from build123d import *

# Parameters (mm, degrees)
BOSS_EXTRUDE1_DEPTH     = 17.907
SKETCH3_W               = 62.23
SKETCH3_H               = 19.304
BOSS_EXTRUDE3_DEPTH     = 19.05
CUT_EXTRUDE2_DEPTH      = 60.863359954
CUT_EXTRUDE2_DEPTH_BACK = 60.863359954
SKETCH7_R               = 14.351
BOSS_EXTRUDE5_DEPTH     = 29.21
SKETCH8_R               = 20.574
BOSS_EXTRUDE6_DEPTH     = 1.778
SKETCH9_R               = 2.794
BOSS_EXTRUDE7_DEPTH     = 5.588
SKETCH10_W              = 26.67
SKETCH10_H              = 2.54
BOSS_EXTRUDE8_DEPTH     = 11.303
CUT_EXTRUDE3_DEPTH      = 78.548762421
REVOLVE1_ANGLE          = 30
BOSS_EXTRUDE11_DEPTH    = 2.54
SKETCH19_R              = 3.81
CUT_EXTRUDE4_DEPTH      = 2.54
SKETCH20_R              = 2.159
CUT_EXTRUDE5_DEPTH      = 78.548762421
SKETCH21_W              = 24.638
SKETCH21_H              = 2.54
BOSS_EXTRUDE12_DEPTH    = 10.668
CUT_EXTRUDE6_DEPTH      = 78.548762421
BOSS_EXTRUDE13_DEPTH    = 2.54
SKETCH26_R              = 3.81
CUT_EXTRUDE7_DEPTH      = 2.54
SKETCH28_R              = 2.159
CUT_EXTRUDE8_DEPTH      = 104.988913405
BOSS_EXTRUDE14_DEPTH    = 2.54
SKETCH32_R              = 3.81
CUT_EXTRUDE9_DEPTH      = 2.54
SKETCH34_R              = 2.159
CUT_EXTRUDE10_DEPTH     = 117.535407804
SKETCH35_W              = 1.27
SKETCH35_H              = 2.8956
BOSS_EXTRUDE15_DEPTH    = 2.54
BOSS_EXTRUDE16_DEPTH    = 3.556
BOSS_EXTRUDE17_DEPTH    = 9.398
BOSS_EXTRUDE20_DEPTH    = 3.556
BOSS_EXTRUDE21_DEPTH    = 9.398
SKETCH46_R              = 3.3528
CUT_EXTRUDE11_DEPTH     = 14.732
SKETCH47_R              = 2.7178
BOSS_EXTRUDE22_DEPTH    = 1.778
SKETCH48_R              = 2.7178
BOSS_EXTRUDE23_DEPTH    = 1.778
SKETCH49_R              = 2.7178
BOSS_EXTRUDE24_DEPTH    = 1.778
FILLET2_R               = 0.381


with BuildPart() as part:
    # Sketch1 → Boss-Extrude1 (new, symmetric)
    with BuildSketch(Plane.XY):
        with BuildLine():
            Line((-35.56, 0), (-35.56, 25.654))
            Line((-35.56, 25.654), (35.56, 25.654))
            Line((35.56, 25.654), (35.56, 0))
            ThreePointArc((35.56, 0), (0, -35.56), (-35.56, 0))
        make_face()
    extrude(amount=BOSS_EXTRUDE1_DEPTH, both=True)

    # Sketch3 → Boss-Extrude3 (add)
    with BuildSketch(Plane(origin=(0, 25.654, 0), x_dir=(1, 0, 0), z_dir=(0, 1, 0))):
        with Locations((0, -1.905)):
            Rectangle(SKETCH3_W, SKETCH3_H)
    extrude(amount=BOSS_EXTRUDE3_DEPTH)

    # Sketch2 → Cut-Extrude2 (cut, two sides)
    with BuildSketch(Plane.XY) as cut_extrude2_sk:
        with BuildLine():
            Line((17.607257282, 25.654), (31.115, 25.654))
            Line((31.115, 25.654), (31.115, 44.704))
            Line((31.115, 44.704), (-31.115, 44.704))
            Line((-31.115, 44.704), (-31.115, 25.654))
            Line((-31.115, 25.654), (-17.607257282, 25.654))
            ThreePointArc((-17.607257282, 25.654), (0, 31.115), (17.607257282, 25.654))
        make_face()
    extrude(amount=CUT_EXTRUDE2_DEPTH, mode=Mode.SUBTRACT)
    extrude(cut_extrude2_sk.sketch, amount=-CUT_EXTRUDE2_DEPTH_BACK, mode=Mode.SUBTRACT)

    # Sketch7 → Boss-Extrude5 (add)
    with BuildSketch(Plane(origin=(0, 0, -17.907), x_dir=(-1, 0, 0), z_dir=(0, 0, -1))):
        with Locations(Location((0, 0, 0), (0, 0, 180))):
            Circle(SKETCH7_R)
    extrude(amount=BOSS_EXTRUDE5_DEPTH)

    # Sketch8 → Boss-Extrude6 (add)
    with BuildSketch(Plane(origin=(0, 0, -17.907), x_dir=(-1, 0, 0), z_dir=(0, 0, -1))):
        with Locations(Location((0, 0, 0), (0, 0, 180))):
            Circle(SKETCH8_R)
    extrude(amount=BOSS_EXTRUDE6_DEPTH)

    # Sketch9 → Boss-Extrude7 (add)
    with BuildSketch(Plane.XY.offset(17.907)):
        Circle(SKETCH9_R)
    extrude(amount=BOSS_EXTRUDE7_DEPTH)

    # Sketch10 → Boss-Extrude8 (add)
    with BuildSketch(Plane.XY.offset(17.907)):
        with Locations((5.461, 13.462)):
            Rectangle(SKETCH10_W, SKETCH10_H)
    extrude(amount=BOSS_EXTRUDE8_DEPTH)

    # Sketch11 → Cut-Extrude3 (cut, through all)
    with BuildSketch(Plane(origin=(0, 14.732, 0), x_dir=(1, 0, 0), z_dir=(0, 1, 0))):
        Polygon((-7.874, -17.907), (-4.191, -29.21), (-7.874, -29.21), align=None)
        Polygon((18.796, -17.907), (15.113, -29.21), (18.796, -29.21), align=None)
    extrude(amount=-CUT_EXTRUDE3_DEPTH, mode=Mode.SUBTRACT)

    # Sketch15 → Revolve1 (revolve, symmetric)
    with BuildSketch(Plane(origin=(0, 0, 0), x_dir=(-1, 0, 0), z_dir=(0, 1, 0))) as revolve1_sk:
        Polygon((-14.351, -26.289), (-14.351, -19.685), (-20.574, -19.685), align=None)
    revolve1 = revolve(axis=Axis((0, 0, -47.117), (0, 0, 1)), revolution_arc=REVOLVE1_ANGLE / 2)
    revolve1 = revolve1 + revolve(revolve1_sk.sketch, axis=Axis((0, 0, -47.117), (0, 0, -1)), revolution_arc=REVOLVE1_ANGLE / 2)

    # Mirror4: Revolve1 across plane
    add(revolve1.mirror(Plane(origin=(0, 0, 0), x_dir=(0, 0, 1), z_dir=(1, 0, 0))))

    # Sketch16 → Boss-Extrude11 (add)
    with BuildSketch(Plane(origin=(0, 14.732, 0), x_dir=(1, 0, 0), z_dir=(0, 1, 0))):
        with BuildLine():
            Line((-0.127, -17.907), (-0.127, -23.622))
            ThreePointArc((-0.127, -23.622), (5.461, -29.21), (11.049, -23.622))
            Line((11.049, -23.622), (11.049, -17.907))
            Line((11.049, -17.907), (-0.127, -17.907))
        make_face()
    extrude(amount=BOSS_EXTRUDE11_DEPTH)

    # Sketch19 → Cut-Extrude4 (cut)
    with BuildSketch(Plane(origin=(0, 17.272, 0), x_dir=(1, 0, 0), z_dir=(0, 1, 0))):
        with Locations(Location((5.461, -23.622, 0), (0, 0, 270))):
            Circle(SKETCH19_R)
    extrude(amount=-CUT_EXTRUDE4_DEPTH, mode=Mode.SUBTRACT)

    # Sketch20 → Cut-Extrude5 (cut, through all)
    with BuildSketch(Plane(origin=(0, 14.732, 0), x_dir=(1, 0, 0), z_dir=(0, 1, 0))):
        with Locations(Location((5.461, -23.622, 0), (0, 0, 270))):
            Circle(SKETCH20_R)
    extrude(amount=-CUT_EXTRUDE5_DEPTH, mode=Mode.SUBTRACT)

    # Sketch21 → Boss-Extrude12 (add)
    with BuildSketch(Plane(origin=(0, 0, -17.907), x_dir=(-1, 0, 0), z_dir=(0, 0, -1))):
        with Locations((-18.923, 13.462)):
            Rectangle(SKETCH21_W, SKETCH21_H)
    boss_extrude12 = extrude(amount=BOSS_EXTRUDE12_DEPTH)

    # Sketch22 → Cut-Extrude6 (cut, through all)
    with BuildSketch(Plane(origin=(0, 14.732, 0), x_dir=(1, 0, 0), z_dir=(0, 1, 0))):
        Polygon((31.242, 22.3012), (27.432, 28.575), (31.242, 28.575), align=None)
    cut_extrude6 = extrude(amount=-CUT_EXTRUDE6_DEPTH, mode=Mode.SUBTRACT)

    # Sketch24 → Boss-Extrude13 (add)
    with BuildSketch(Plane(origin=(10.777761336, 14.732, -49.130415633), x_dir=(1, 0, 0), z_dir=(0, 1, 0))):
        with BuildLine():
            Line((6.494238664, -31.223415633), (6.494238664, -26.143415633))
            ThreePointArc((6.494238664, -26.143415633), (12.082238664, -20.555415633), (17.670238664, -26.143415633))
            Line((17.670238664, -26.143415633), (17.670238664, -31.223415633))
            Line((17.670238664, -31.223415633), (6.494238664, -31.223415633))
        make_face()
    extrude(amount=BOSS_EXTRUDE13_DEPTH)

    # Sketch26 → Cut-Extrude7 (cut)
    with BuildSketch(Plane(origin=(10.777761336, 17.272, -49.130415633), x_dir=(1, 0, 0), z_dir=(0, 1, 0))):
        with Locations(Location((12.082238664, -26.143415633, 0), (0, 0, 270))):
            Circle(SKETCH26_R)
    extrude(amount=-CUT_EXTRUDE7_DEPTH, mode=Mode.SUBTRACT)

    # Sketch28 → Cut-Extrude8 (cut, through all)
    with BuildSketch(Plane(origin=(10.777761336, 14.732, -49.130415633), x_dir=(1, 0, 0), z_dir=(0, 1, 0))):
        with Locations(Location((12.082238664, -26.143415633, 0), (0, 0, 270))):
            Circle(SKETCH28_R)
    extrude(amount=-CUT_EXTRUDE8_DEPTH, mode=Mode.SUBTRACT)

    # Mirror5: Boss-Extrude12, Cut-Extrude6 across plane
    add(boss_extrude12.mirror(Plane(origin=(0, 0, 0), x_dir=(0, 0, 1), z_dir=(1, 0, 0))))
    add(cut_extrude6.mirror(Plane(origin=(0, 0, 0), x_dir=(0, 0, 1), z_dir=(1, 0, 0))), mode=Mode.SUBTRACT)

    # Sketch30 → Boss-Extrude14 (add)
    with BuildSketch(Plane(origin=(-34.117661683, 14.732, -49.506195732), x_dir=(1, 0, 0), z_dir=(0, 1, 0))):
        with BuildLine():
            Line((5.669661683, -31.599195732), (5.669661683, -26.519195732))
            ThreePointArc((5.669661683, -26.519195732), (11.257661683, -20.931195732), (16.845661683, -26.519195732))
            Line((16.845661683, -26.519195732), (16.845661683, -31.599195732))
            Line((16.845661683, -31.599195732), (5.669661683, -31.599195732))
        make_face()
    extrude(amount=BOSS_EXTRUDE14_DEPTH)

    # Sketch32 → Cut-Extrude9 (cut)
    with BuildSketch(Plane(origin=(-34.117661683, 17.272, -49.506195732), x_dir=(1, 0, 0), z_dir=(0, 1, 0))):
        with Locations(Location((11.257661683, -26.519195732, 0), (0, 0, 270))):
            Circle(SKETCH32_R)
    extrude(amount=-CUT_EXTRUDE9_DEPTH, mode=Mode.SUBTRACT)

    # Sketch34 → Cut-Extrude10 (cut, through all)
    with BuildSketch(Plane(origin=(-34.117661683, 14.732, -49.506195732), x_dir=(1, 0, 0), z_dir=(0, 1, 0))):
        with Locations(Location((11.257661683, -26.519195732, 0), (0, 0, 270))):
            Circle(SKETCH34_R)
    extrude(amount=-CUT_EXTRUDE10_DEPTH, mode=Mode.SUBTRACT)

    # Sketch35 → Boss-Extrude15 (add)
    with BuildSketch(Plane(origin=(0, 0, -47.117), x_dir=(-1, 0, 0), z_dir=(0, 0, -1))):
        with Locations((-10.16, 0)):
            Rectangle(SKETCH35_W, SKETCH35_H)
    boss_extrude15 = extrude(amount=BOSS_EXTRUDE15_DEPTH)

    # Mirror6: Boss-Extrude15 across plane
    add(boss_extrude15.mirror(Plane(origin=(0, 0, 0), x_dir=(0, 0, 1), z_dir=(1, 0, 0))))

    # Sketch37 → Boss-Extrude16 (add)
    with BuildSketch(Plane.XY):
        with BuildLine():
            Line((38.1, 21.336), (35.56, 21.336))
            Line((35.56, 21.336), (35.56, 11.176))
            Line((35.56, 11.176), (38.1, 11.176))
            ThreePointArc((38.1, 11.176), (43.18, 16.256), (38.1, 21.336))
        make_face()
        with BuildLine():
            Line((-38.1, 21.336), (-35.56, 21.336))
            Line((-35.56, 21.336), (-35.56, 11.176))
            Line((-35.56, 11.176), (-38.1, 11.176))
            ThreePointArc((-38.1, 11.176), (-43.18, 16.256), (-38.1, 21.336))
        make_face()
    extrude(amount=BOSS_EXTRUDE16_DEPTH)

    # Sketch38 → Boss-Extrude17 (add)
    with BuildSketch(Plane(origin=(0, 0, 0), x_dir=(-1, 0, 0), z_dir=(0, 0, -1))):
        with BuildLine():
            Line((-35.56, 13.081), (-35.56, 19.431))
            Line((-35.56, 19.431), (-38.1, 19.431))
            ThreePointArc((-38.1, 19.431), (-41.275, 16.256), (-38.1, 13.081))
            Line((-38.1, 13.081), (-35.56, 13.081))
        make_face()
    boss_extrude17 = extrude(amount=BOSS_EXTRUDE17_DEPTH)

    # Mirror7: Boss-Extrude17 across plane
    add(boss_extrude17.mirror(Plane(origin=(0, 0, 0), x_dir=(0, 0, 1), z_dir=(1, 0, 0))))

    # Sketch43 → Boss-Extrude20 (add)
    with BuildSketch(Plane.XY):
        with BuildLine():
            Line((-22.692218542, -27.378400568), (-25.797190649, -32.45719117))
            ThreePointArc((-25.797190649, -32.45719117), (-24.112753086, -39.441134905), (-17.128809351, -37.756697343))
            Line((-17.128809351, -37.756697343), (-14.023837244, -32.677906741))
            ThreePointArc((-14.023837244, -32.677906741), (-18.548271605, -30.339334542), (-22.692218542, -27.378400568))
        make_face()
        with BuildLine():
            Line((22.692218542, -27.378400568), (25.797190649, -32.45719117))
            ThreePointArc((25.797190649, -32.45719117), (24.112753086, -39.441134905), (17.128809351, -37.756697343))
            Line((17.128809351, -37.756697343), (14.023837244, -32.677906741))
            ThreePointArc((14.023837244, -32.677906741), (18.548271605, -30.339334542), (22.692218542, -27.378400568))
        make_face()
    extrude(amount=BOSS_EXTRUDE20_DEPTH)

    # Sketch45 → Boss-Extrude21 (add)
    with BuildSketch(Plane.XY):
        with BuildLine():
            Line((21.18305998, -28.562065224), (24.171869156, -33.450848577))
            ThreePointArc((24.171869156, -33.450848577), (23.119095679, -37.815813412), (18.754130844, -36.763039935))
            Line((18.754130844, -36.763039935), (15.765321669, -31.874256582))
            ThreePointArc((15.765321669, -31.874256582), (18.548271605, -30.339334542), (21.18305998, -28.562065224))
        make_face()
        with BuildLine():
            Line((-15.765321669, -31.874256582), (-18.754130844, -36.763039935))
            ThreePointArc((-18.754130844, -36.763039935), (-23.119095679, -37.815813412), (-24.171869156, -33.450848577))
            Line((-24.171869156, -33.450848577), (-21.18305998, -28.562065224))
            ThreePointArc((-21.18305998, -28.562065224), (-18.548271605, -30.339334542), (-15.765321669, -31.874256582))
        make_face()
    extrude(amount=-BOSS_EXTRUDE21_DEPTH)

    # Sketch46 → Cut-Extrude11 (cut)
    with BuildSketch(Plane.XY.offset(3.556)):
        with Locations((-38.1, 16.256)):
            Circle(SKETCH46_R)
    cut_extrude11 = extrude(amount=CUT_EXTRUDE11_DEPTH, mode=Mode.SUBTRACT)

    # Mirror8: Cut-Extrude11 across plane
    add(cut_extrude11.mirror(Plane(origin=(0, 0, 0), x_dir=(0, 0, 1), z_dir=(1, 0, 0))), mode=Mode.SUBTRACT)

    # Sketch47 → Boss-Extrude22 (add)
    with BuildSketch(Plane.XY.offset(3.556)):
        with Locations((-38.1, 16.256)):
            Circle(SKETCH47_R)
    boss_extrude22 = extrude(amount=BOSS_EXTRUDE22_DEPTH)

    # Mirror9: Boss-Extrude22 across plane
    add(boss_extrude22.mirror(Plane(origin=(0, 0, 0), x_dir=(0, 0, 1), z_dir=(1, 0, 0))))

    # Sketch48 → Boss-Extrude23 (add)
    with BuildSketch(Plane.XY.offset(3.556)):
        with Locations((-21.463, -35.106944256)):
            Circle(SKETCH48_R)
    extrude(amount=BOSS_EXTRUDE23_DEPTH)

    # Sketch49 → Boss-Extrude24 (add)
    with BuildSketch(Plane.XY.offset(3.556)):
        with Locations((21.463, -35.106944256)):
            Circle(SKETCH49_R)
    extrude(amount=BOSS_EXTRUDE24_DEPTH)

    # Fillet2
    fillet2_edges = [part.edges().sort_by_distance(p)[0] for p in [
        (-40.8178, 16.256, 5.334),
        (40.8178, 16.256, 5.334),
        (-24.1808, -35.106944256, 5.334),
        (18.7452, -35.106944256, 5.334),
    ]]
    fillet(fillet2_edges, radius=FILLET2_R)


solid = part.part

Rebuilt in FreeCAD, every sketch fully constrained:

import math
import FreeCAD as App
import Part
import Sketcher
Q = App.Units.Quantity


def edges_at(feature, points):
    """Names of the edges that pass closest to the given points."""
    edges = feature.Shape.Edges
    near = lambda p: min(range(len(edges)), key=lambda i: edges[i].distToShape(Part.Vertex(*p))[0])
    return sorted({f"Edge{near(p) + 1}" for p in points})


def add_polygon(sketch, points):
    """Adds a closed chain of lines whose ends are joined by coincident constraints."""
    first, n = sketch.GeometryCount, len(points)
    for a, b in zip(points, points[1:] + points[:1]):
        sketch.addGeometry(Part.LineSegment(App.Vector(*a, 0), App.Vector(*b, 0)), False)
    for i in range(n):
        sketch.addConstraint(Sketcher.Constraint("Coincident", first + i, 2, first + (i + 1) % n, 1))

doc = App.newDocument("Part")
body = doc.addObject("PartDesign::Body", "Body")

# Sketch on XY plane
sketch1 = doc.addObject("Sketcher::SketchObject", "Sketch")
body.addObject(sketch1)
sketch1.AttachmentSupport = (doc.XY_Plane, [""])
sketch1.MapMode = "FlatFace"
sketch1.addGeometry([
    Part.LineSegment(App.Vector(-35.56, 25.654, 0), App.Vector(-35.56, 0, 0)),
    Part.ArcOfCircle(Part.Circle(App.Vector(0, 0, 0), App.Vector(0, 0, 1), 35.56), math.radians(180), math.radians(360)),
    Part.LineSegment(App.Vector(35.56, 0, 0), App.Vector(35.56, 25.654, 0)),
    Part.LineSegment(App.Vector(35.56, 25.654, 0), App.Vector(-35.56, 25.654, 0)),
], False)
sketch1.addConstraint([
    Sketcher.Constraint("Tangent", 0, 2, 1, 1),
    Sketcher.Constraint("Tangent", 1, 2, 2, 1),
    Sketcher.Constraint("Coincident", 2, 2, 3, 1),
    Sketcher.Constraint("Coincident", 3, 2, 0, 1),
    Sketcher.Constraint("Vertical", 0),
    Sketcher.Constraint("Vertical", 2),
    Sketcher.Constraint("Horizontal", 3),
    Sketcher.Constraint("Coincident", 1, 3, -1, 1),
    Sketcher.Constraint("Radius", 1, Q("1.4 in")),
    Sketcher.Constraint("DistanceY", 0, 2, 0, 1, Q("1.01 in")),
])
pad1 = doc.addObject("PartDesign::Pad", "Pad")
body.addObject(pad1)
pad1.Profile = sketch1
pad1.Length = Q("1.41 in")
pad1.Midplane = True

# Sketch on XZ plane
sketch2 = doc.addObject("Sketcher::SketchObject", "Sketch001")
body.addObject(sketch2)
sketch2.AttachmentSupport = (doc.XZ_Plane, [""])
sketch2.MapMode = "FlatFace"
sketch2.AttachmentOffset = App.Placement(App.Vector(0, 0, -1.01 * 25.4), App.Rotation())
add_polygon(sketch2, [(-31.115, -7.747), (-31.115, 11.557), (31.115, 11.557), (31.115, -7.747)])  # lines 0-3
sketch2.addConstraint([
    Sketcher.Constraint("Vertical", 0),
    Sketcher.Constraint("Horizontal", 1),
    Sketcher.Constraint("Vertical", 2),
    Sketcher.Constraint("Horizontal", 3),
    Sketcher.Constraint("DistanceX", 1, 1, 1, 2, Q("2.45 in")),
    Sketcher.Constraint("DistanceY", 0, 1, 0, 2, Q("0.76 in")),
    Sketcher.Constraint("DistanceX", 0, 2, -1, 1, Q("1.225 in")),
    Sketcher.Constraint("DistanceY", -1, 1, 0, 2, Q("0.455 in")),
])
pad2 = doc.addObject("PartDesign::Pad", "Pad001")
body.addObject(pad2)
pad2.Profile = sketch2
pad2.Length = Q("0.75 in")
pad2.Reversed = True

# Sketch on XY plane
sketch3 = doc.addObject("Sketcher::SketchObject", "Sketch002")
body.addObject(sketch3)
sketch3.AttachmentSupport = (doc.XY_Plane, [""])
sketch3.MapMode = "FlatFace"
sketch3.addGeometry([
    Part.LineSegment(App.Vector(17.607257, 25.654, 0), App.Vector(31.115, 25.654, 0)),  # 0
    Part.LineSegment(App.Vector(31.115, 25.654, 0), App.Vector(31.115, 44.704, 0)),  # 1
    Part.LineSegment(App.Vector(31.115, 44.704, 0), App.Vector(-31.115, 44.704, 0)),  # 2
    Part.LineSegment(App.Vector(-31.115, 44.704, 0), App.Vector(-31.115, 25.654, 0)),  # 3
    Part.LineSegment(App.Vector(-31.115, 25.654, 0), App.Vector(-17.607257, 25.654, 0)),  # 4
    Part.ArcOfCircle(Part.Circle(App.Vector(0, 0, 0), App.Vector(0, 0, 1), 31.115), math.radians(55.536799), math.radians(124.463201)),  # 5
], False)
sketch3.addConstraint([
    Sketcher.Constraint("Coincident", 0, 2, 1, 1),
    Sketcher.Constraint("Coincident", 1, 2, 2, 1),
    Sketcher.Constraint("Coincident", 2, 2, 3, 1),
    Sketcher.Constraint("Coincident", 3, 2, 4, 1),
    Sketcher.Constraint("Coincident", 4, 2, 5, 2),
    Sketcher.Constraint("Coincident", 5, 1, 0, 1),
    Sketcher.Constraint("Horizontal", 0),
    Sketcher.Constraint("Vertical", 1),
    Sketcher.Constraint("Horizontal", 2),
    Sketcher.Constraint("Vertical", 3),
    Sketcher.Constraint("Horizontal", 4),
    Sketcher.Constraint("Coincident", 5, 3, -1, 1),
    Sketcher.Constraint("Symmetric", 0, 2, 3, 2, -2),
    Sketcher.Constraint("Radius", 5, Q("1.225 in")),
    Sketcher.Constraint("DistanceX", 2, 2, 2, 1, Q("2.45 in")),
    Sketcher.Constraint("DistanceY", 1, 1, 1, 2, Q("0.75 in")),
    Sketcher.Constraint("DistanceY", -1, 1, 0, 2, Q("1.01 in")),
])
pocket1 = doc.addObject("PartDesign::Pocket", "Pocket")
body.addObject(pocket1)
pocket1.Profile = sketch3
pocket1.Type = "ThroughAll"
pocket1.Midplane = True

# Sketch on XY plane
sketch4 = doc.addObject("Sketcher::SketchObject", "Sketch003")
body.addObject(sketch4)
sketch4.AttachmentSupport = (doc.XY_Plane, [""])
sketch4.MapMode = "FlatFace"
sketch4.AttachmentOffset = App.Placement(App.Vector(0, 0, -0.705 * 25.4), App.Rotation())
sketch4.addGeometry(Part.Circle(App.Vector(0, 0, 0), App.Vector(0, 0, 1), 14.351), False)
sketch4.addConstraint([
    Sketcher.Constraint("Coincident", 0, 3, -1, 1),
    Sketcher.Constraint("Diameter", 0, Q("1.13 in")),
])
pad3 = doc.addObject("PartDesign::Pad", "Pad002")
body.addObject(pad3)
pad3.Profile = sketch4
pad3.Length = Q("1.15 in")
pad3.Reversed = True

# Sketch on XY plane
sketch5 = doc.addObject("Sketcher::SketchObject", "Sketch004")
body.addObject(sketch5)
sketch5.AttachmentSupport = (doc.XY_Plane, [""])
sketch5.MapMode = "FlatFace"
sketch5.AttachmentOffset = App.Placement(App.Vector(0, 0, -0.705 * 25.4), App.Rotation())
sketch5.addGeometry(Part.Circle(App.Vector(0, 0, 0), App.Vector(0, 0, 1), 20.574), False)
sketch5.addConstraint([
    Sketcher.Constraint("Coincident", 0, 3, -1, 1),
    Sketcher.Constraint("Diameter", 0, Q("1.62 in")),
])
pad4 = doc.addObject("PartDesign::Pad", "Pad003")
body.addObject(pad4)
pad4.Profile = sketch5
pad4.Length = Q("0.07 in")
pad4.Reversed = True

# Sketch on XY plane
sketch6 = doc.addObject("Sketcher::SketchObject", "Sketch005")
body.addObject(sketch6)
sketch6.AttachmentSupport = (doc.XY_Plane, [""])
sketch6.MapMode = "FlatFace"
sketch6.AttachmentOffset = App.Placement(App.Vector(0, 0, 0.705 * 25.4), App.Rotation())
sketch6.addGeometry(Part.Circle(App.Vector(0, 0, 0), App.Vector(0, 0, 1), 2.794), False)
sketch6.addConstraint([
    Sketcher.Constraint("Coincident", 0, 3, -1, 1),
    Sketcher.Constraint("Diameter", 0, Q("0.22 in")),
])
pad5 = doc.addObject("PartDesign::Pad", "Pad004")
body.addObject(pad5)
pad5.Profile = sketch6
pad5.Length = Q("0.22 in")

# Sketch on XY plane
sketch7 = doc.addObject("Sketcher::SketchObject", "Sketch006")
body.addObject(sketch7)
sketch7.AttachmentSupport = (doc.XY_Plane, [""])
sketch7.MapMode = "FlatFace"
sketch7.AttachmentOffset = App.Placement(App.Vector(0, 0, 0.705 * 25.4), App.Rotation())
add_polygon(sketch7, [(-7.874, 14.732), (-7.874, 12.192), (18.796, 12.192), (18.796, 14.732)])  # lines 0-3
sketch7.addConstraint([
    Sketcher.Constraint("Vertical", 0),
    Sketcher.Constraint("Horizontal", 1),
    Sketcher.Constraint("Vertical", 2),
    Sketcher.Constraint("Horizontal", 3),
    Sketcher.Constraint("DistanceY", 0, 2, 0, 1, Q("0.1 in")),
    Sketcher.Constraint("DistanceX", 1, 1, 1, 2, Q("1.05 in")),
    Sketcher.Constraint("DistanceX", 0, 2, -1, 1, Q("0.31 in")),
    Sketcher.Constraint("DistanceY", -1, 1, 0, 2, Q("0.48 in")),
])
pad6 = doc.addObject("PartDesign::Pad", "Pad005")
body.addObject(pad6)
pad6.Profile = sketch7
pad6.Length = Q("0.445 in")

# Sketch on XZ plane
sketch8 = doc.addObject("Sketcher::SketchObject", "Sketch007")
body.addObject(sketch8)
sketch8.AttachmentSupport = (doc.XZ_Plane, [""])
sketch8.MapMode = "FlatFace"
sketch8.AttachmentOffset = App.Placement(App.Vector(0, 0, -0.58 * 25.4), App.Rotation())
add_polygon(sketch8, [(-4.191, 29.21), (-7.874, 17.907), (-7.874, 29.21)])  # lines 0-2
add_polygon(sketch8, [(18.796, 17.907), (15.113, 29.21), (18.796, 29.21)])  # lines 3-5
sketch8.addConstraint([
    Sketcher.Constraint("Vertical", 1),
    Sketcher.Constraint("Horizontal", 2),
    Sketcher.Constraint("Horizontal", 4),
    Sketcher.Constraint("Vertical", 5),
    Sketcher.Constraint("Horizontal", 2, 2, 3, 2),
    Sketcher.Constraint("Horizontal", 0, 2, 5, 2),
    Sketcher.Constraint("Equal", 2, 4),
    Sketcher.Constraint("DistanceX", 2, 1, 2, 2, Q("0.145 in")),
    Sketcher.Constraint("DistanceY", 1, 1, 1, 2, Q("0.445 in")),
    Sketcher.Constraint("DistanceX", 0, 2, -1, 1, Q("0.31 in")),
    Sketcher.Constraint("DistanceY", -1, 1, 1, 2, Q("1.15 in")),
    Sketcher.Constraint("DistanceX", -1, 1, 4, 2, Q("0.74 in")),
])
pocket2 = doc.addObject("PartDesign::Pocket", "Pocket001")
body.addObject(pocket2)
pocket2.Profile = sketch8
pocket2.Type = "ThroughAll"
pocket2.Reversed = True

# Sketch on XZ plane
sketch9 = doc.addObject("Sketcher::SketchObject", "Sketch008")
body.addObject(sketch9)
sketch9.AttachmentSupport = (doc.XZ_Plane, [""])
sketch9.MapMode = "FlatFace"
add_polygon(sketch9, [(14.351, -26.289), (14.351, -19.685), (20.574, -19.685)])  # lines 0-2
sketch9.addConstraint([
    Sketcher.Constraint("Vertical", 0),
    Sketcher.Constraint("Horizontal", 1),
    Sketcher.Constraint("DistanceY", 0, 1, 0, 2, Q("0.26 in")),
    Sketcher.Constraint("DistanceX", 1, 1, 1, 2, Q("0.245 in")),
    Sketcher.Constraint("DistanceX", -1, 1, 1, 2, Q("0.81 in")),
    Sketcher.Constraint("DistanceY", 0, 2, -1, 1, Q("0.775 in")),
])
revolution = doc.addObject("PartDesign::Revolution", "Revolution")
body.addObject(revolution)
revolution.Profile = sketch9
revolution.ReferenceAxis = (sketch9, ["V_Axis"])
revolution.Angle = 15

# Sketch on XZ plane
sketch10 = doc.addObject("Sketcher::SketchObject", "Sketch009")
body.addObject(sketch10)
sketch10.AttachmentSupport = (doc.XZ_Plane, [""])
sketch10.MapMode = "FlatFace"
add_polygon(sketch10, [(14.351, -26.289), (14.351, -19.685), (20.574, -19.685)])  # lines 0-2
sketch10.addConstraint([
    Sketcher.Constraint("Vertical", 0),
    Sketcher.Constraint("Horizontal", 1),
    Sketcher.Constraint("DistanceY", 0, 1, 0, 2, Q("0.26 in")),
    Sketcher.Constraint("DistanceX", 1, 1, 1, 2, Q("0.245 in")),
    Sketcher.Constraint("DistanceX", -1, 1, 1, 2, Q("0.81 in")),
    Sketcher.Constraint("DistanceY", 0, 2, -1, 1, Q("0.775 in")),
])
revolution2 = doc.addObject("PartDesign::Revolution", "Revolution001")
body.addObject(revolution2)
revolution2.Profile = sketch10
revolution2.ReferenceAxis = (sketch10, ["V_Axis"])
revolution2.Angle = 15
revolution2.Reversed = True
doc.recompute()

mirrored = doc.addObject("PartDesign::Mirrored", "Mirrored")
body.addObject(mirrored)
mirrored.Originals = [revolution, revolution2]
mirrored.MirrorPlane = (doc.YZ_Plane, [""])
body.Tip = mirrored

# Sketch on XZ plane
sketch11 = doc.addObject("Sketcher::SketchObject", "Sketch010")
body.addObject(sketch11)
sketch11.AttachmentSupport = (doc.XZ_Plane, [""])
sketch11.MapMode = "FlatFace"
sketch11.AttachmentOffset = App.Placement(App.Vector(0, 0, -0.58 * 25.4), App.Rotation())
sketch11.addGeometry([
    Part.LineSegment(App.Vector(-0.127, 17.907, 0), App.Vector(-0.127, 23.622, 0)),
    Part.ArcOfCircle(Part.Circle(App.Vector(5.461, 23.622, 0), App.Vector(0, 0, 1), 5.588), math.radians(0), math.radians(180)),
    Part.LineSegment(App.Vector(11.049, 23.622, 0), App.Vector(11.049, 17.907, 0)),
    Part.LineSegment(App.Vector(11.049, 17.907, 0), App.Vector(-0.127, 17.907, 0)),
], False)
sketch11.addConstraint([
    Sketcher.Constraint("Tangent", 0, 2, 1, 2),
    Sketcher.Constraint("Tangent", 1, 1, 2, 1),
    Sketcher.Constraint("Coincident", 2, 2, 3, 1),
    Sketcher.Constraint("Coincident", 3, 2, 0, 1),
    Sketcher.Constraint("Vertical", 0),
    Sketcher.Constraint("Vertical", 2),
    Sketcher.Constraint("Horizontal", 3),
    Sketcher.Constraint("Radius", 1, Q("0.22 in")),
    Sketcher.Constraint("DistanceY", 0, 1, 0, 2, Q("0.225 in")),
    Sketcher.Constraint("DistanceY", -1, 1, 1, 3, Q("0.93 in")),
    Sketcher.Constraint("DistanceX", -1, 1, 1, 3, Q("0.215 in")),
])
pad7 = doc.addObject("PartDesign::Pad", "Pad006")
body.addObject(pad7)
pad7.Profile = sketch11
pad7.Length = Q("0.1 in")
pad7.Reversed = True

# Sketch on XZ plane
sketch12 = doc.addObject("Sketcher::SketchObject", "Sketch011")
body.addObject(sketch12)
sketch12.AttachmentSupport = (doc.XZ_Plane, [""])
sketch12.MapMode = "FlatFace"
sketch12.AttachmentOffset = App.Placement(App.Vector(0, 0, -0.68 * 25.4), App.Rotation())
sketch12.addGeometry(Part.Circle(App.Vector(5.461, 23.622, 0), App.Vector(0, 0, 1), 3.81), False)
sketch12.addConstraint([
    Sketcher.Constraint("Diameter", 0, Q("0.3 in")),
    Sketcher.Constraint("DistanceY", -1, 1, 0, 3, Q("0.93 in")),
    Sketcher.Constraint("DistanceX", -1, 1, 0, 3, Q("0.215 in")),
])
pocket3 = doc.addObject("PartDesign::Pocket", "Pocket002")
body.addObject(pocket3)
pocket3.Profile = sketch12
pocket3.Length = Q("0.1 in")
pocket3.Reversed = True

# Sketch on XZ plane
sketch13 = doc.addObject("Sketcher::SketchObject", "Sketch012")
body.addObject(sketch13)
sketch13.AttachmentSupport = (doc.XZ_Plane, [""])
sketch13.MapMode = "FlatFace"
sketch13.AttachmentOffset = App.Placement(App.Vector(0, 0, -0.58 * 25.4), App.Rotation())
sketch13.addGeometry(Part.Circle(App.Vector(5.461, 23.622, 0), App.Vector(0, 0, 1), 2.159), False)
sketch13.addConstraint([
    Sketcher.Constraint("Diameter", 0, Q("0.17 in")),
    Sketcher.Constraint("DistanceY", -1, 1, 0, 3, Q("0.93 in")),
    Sketcher.Constraint("DistanceX", -1, 1, 0, 3, Q("0.215 in")),
])
pocket4 = doc.addObject("PartDesign::Pocket", "Pocket003")
body.addObject(pocket4)
pocket4.Profile = sketch13
pocket4.Type = "ThroughAll"
pocket4.Reversed = True

# Sketch on XY plane
sketch14 = doc.addObject("Sketcher::SketchObject", "Sketch013")
body.addObject(sketch14)
sketch14.AttachmentSupport = (doc.XY_Plane, [""])
sketch14.MapMode = "FlatFace"
sketch14.AttachmentOffset = App.Placement(App.Vector(0, 0, -0.705 * 25.4), App.Rotation())
add_polygon(sketch14, [(31.242, 14.732), (31.242, 12.192), (6.604, 12.192), (6.604, 14.732)])  # lines 0-3
sketch14.addConstraint([
    Sketcher.Constraint("Vertical", 0),
    Sketcher.Constraint("Horizontal", 1),
    Sketcher.Constraint("Vertical", 2),
    Sketcher.Constraint("Horizontal", 3),
    Sketcher.Constraint("DistanceY", 0, 2, 0, 1, Q("0.1 in")),
    Sketcher.Constraint("DistanceX", 1, 2, 1, 1, Q("0.97 in")),
    Sketcher.Constraint("DistanceX", -1, 1, 0, 2, Q("1.23 in")),
    Sketcher.Constraint("DistanceY", -1, 1, 0, 2, Q("0.48 in")),
])
pad8 = doc.addObject("PartDesign::Pad", "Pad007")
body.addObject(pad8)
pad8.Profile = sketch14
pad8.Length = Q("0.42 in")
pad8.Reversed = True

# Sketch on XZ plane
sketch15 = doc.addObject("Sketcher::SketchObject", "Sketch014")
body.addObject(sketch15)
sketch15.AttachmentSupport = (doc.XZ_Plane, [""])
sketch15.MapMode = "FlatFace"
sketch15.AttachmentOffset = App.Placement(App.Vector(0, 0, -0.58 * 25.4), App.Rotation())
add_polygon(sketch15, [(27.432, -28.575), (31.242, -22.3012), (31.242, -28.575)])  # lines 0-2
sketch15.addConstraint([
    Sketcher.Constraint("Vertical", 1),
    Sketcher.Constraint("Horizontal", 2),
    Sketcher.Constraint("DistanceX", 2, 2, 2, 1, Q("0.15 in")),
    Sketcher.Constraint("DistanceY", 1, 2, 1, 1, Q("0.247 in")),
    Sketcher.Constraint("DistanceX", -1, 1, 0, 2, Q("1.23 in")),
    Sketcher.Constraint("DistanceY", 0, 2, -1, 1, Q("0.878 in")),
])
pocket5 = doc.addObject("PartDesign::Pocket", "Pocket004")
body.addObject(pocket5)
pocket5.Profile = sketch15
pocket5.Type = "ThroughAll"
pocket5.Reversed = True

# Sketch on XZ plane
sketch16 = doc.addObject("Sketcher::SketchObject", "Sketch015")
body.addObject(sketch16)
sketch16.AttachmentSupport = (doc.XZ_Plane, [""])
sketch16.MapMode = "FlatFace"
sketch16.AttachmentOffset = App.Placement(App.Vector(0, 0, -0.58 * 25.4), App.Rotation())
sketch16.addGeometry([
    Part.LineSegment(App.Vector(17.272, -22.987, 0), App.Vector(17.272, -17.907, 0)),
    Part.LineSegment(App.Vector(17.272, -17.907, 0), App.Vector(28.448, -17.907, 0)),
    Part.LineSegment(App.Vector(28.448, -17.907, 0), App.Vector(28.448, -22.987, 0)),
    Part.ArcOfCircle(Part.Circle(App.Vector(22.86, -22.987, 0), App.Vector(0, 0, 1), 5.588), math.radians(180), math.radians(360)),
], False)
sketch16.addConstraint([
    Sketcher.Constraint("Coincident", 0, 2, 1, 1),
    Sketcher.Constraint("Coincident", 1, 2, 2, 1),
    Sketcher.Constraint("Tangent", 2, 2, 3, 2),
    Sketcher.Constraint("Tangent", 3, 1, 0, 1),
    Sketcher.Constraint("Vertical", 0),
    Sketcher.Constraint("Horizontal", 1),
    Sketcher.Constraint("Vertical", 2),
    Sketcher.Constraint("Radius", 3, Q("0.22 in")),
    Sketcher.Constraint("DistanceY", 0, 1, 0, 2, Q("0.2 in")),
    Sketcher.Constraint("DistanceX", -1, 1, 3, 3, Q("0.9 in")),
    Sketcher.Constraint("DistanceY", 3, 3, -1, 1, Q("0.905 in")),
])
pad9 = doc.addObject("PartDesign::Pad", "Pad008")
body.addObject(pad9)
pad9.Profile = sketch16
pad9.Length = Q("0.1 in")
pad9.Reversed = True

# Sketch on XZ plane
sketch17 = doc.addObject("Sketcher::SketchObject", "Sketch016")
body.addObject(sketch17)
sketch17.AttachmentSupport = (doc.XZ_Plane, [""])
sketch17.MapMode = "FlatFace"
sketch17.AttachmentOffset = App.Placement(App.Vector(0, 0, -0.68 * 25.4), App.Rotation())
sketch17.addGeometry(Part.Circle(App.Vector(22.86, -22.987, 0), App.Vector(0, 0, 1), 3.81), False)
sketch17.addConstraint([
    Sketcher.Constraint("Diameter", 0, Q("0.3 in")),
    Sketcher.Constraint("DistanceX", -1, 1, 0, 3, Q("0.9 in")),
    Sketcher.Constraint("DistanceY", 0, 3, -1, 1, Q("0.905 in")),
])
pocket6 = doc.addObject("PartDesign::Pocket", "Pocket005")
body.addObject(pocket6)
pocket6.Profile = sketch17
pocket6.Length = Q("0.1 in")
pocket6.Reversed = True

# Sketch on XZ plane
sketch18 = doc.addObject("Sketcher::SketchObject", "Sketch017")
body.addObject(sketch18)
sketch18.AttachmentSupport = (doc.XZ_Plane, [""])
sketch18.MapMode = "FlatFace"
sketch18.AttachmentOffset = App.Placement(App.Vector(0, 0, -0.58 * 25.4), App.Rotation())
sketch18.addGeometry(Part.Circle(App.Vector(22.86, -22.987, 0), App.Vector(0, 0, 1), 2.159), False)
sketch18.addConstraint([
    Sketcher.Constraint("Diameter", 0, Q("0.17 in")),
    Sketcher.Constraint("DistanceX", -1, 1, 0, 3, Q("0.9 in")),
    Sketcher.Constraint("DistanceY", 0, 3, -1, 1, Q("0.905 in")),
])
pocket7 = doc.addObject("PartDesign::Pocket", "Pocket006")
body.addObject(pocket7)
pocket7.Profile = sketch18
pocket7.Type = "ThroughAll"
pocket7.Reversed = True
doc.recompute()

mirrored2 = doc.addObject("PartDesign::Mirrored", "Mirrored001")
body.addObject(mirrored2)
mirrored2.Originals = [pad8, pocket5]
mirrored2.MirrorPlane = (doc.YZ_Plane, [""])
body.Tip = mirrored2

# Sketch on XZ plane
sketch19 = doc.addObject("Sketcher::SketchObject", "Sketch018")
body.addObject(sketch19)
sketch19.AttachmentSupport = (doc.XZ_Plane, [""])
sketch19.MapMode = "FlatFace"
sketch19.AttachmentOffset = App.Placement(App.Vector(0, 0, -0.58 * 25.4), App.Rotation())
sketch19.addGeometry([
    Part.LineSegment(App.Vector(-28.448, -22.987, 0), App.Vector(-28.448, -17.907, 0)),
    Part.LineSegment(App.Vector(-28.448, -17.907, 0), App.Vector(-17.272, -17.907, 0)),
    Part.LineSegment(App.Vector(-17.272, -17.907, 0), App.Vector(-17.272, -22.987, 0)),
    Part.ArcOfCircle(Part.Circle(App.Vector(-22.86, -22.987, 0), App.Vector(0, 0, 1), 5.588), math.radians(180), math.radians(360)),
], False)
sketch19.addConstraint([
    Sketcher.Constraint("Coincident", 0, 2, 1, 1),
    Sketcher.Constraint("Coincident", 1, 2, 2, 1),
    Sketcher.Constraint("Tangent", 2, 2, 3, 2),
    Sketcher.Constraint("Tangent", 3, 1, 0, 1),
    Sketcher.Constraint("Vertical", 0),
    Sketcher.Constraint("Horizontal", 1),
    Sketcher.Constraint("Vertical", 2),
    Sketcher.Constraint("Radius", 3, Q("0.22 in")),
    Sketcher.Constraint("DistanceY", 0, 1, 0, 2, Q("0.2 in")),
    Sketcher.Constraint("DistanceX", 3, 3, -1, 1, Q("0.9 in")),
    Sketcher.Constraint("DistanceY", 3, 3, -1, 1, Q("0.905 in")),
])
pad10 = doc.addObject("PartDesign::Pad", "Pad009")
body.addObject(pad10)
pad10.Profile = sketch19
pad10.Length = Q("0.1 in")
pad10.Reversed = True

# Sketch on XZ plane
sketch20 = doc.addObject("Sketcher::SketchObject", "Sketch019")
body.addObject(sketch20)
sketch20.AttachmentSupport = (doc.XZ_Plane, [""])
sketch20.MapMode = "FlatFace"
sketch20.AttachmentOffset = App.Placement(App.Vector(0, 0, -0.68 * 25.4), App.Rotation())
sketch20.addGeometry(Part.Circle(App.Vector(-22.86, -22.987, 0), App.Vector(0, 0, 1), 3.81), False)
sketch20.addConstraint([
    Sketcher.Constraint("Diameter", 0, Q("0.3 in")),
    Sketcher.Constraint("DistanceX", 0, 3, -1, 1, Q("0.9 in")),
    Sketcher.Constraint("DistanceY", 0, 3, -1, 1, Q("0.905 in")),
])
pocket8 = doc.addObject("PartDesign::Pocket", "Pocket007")
body.addObject(pocket8)
pocket8.Profile = sketch20
pocket8.Length = Q("0.1 in")
pocket8.Reversed = True

# Sketch on XZ plane
sketch21 = doc.addObject("Sketcher::SketchObject", "Sketch020")
body.addObject(sketch21)
sketch21.AttachmentSupport = (doc.XZ_Plane, [""])
sketch21.MapMode = "FlatFace"
sketch21.AttachmentOffset = App.Placement(App.Vector(0, 0, -0.58 * 25.4), App.Rotation())
sketch21.addGeometry(Part.Circle(App.Vector(-22.86, -22.987, 0), App.Vector(0, 0, 1), 2.159), False)
sketch21.addConstraint([
    Sketcher.Constraint("Diameter", 0, Q("0.17 in")),
    Sketcher.Constraint("DistanceX", 0, 3, -1, 1, Q("0.9 in")),
    Sketcher.Constraint("DistanceY", 0, 3, -1, 1, Q("0.905 in")),
])
pocket9 = doc.addObject("PartDesign::Pocket", "Pocket008")
body.addObject(pocket9)
pocket9.Profile = sketch21
pocket9.Type = "ThroughAll"
pocket9.Reversed = True

# Sketch on XY plane
sketch22 = doc.addObject("Sketcher::SketchObject", "Sketch021")
body.addObject(sketch22)
sketch22.AttachmentSupport = (doc.XY_Plane, [""])
sketch22.MapMode = "FlatFace"
sketch22.AttachmentOffset = App.Placement(App.Vector(0, 0, -1.855 * 25.4), App.Rotation())
add_polygon(sketch22, [(10.795, 1.4478), (10.795, -1.4478), (9.525, -1.4478), (9.525, 1.4478)])  # lines 0-3
sketch22.addConstraint([
    Sketcher.Constraint("Vertical", 0),
    Sketcher.Constraint("Horizontal", 1),
    Sketcher.Constraint("Vertical", 2),
    Sketcher.Constraint("Horizontal", 3),
    Sketcher.Constraint("DistanceX", 1, 2, 1, 1, Q("0.05 in")),
    Sketcher.Constraint("DistanceY", 0, 2, 0, 1, Q("0.114 in")),
    Sketcher.Constraint("DistanceX", -1, 1, 0, 2, Q("0.425 in")),
    Sketcher.Constraint("DistanceY", 0, 2, -1, 1, Q("0.057 in")),
])
pad11 = doc.addObject("PartDesign::Pad", "Pad010")
body.addObject(pad11)
pad11.Profile = sketch22
pad11.Length = Q("0.1 in")
pad11.Reversed = True
doc.recompute()

mirrored3 = doc.addObject("PartDesign::Mirrored", "Mirrored002")
body.addObject(mirrored3)
mirrored3.Originals = [pad11]
mirrored3.MirrorPlane = (doc.YZ_Plane, [""])
body.Tip = mirrored3

# Sketch on XY plane
sketch23 = doc.addObject("Sketcher::SketchObject", "Sketch022")
body.addObject(sketch23)
sketch23.AttachmentSupport = (doc.XY_Plane, [""])
sketch23.MapMode = "FlatFace"
sketch23.addGeometry([
    Part.LineSegment(App.Vector(38.1, 21.336, 0), App.Vector(35.56, 21.336, 0)),  # 0
    Part.LineSegment(App.Vector(35.56, 21.336, 0), App.Vector(35.56, 11.176, 0)),  # 1
    Part.LineSegment(App.Vector(35.56, 11.176, 0), App.Vector(38.1, 11.176, 0)),  # 2
    Part.ArcOfCircle(Part.Circle(App.Vector(38.1, 16.256, 0), App.Vector(0, 0, 1), 5.08), math.radians(-90), math.radians(90)),  # 3
    Part.LineSegment(App.Vector(-35.56, 21.336, 0), App.Vector(-38.1, 21.336, 0)),  # 4
    Part.ArcOfCircle(Part.Circle(App.Vector(-38.1, 16.256, 0), App.Vector(0, 0, 1), 5.08), math.radians(90), math.radians(270)),  # 5
    Part.LineSegment(App.Vector(-38.1, 11.176, 0), App.Vector(-35.56, 11.176, 0)),  # 6
    Part.LineSegment(App.Vector(-35.56, 11.176, 0), App.Vector(-35.56, 21.336, 0)),  # 7
], False)
sketch23.addConstraint([
    Sketcher.Constraint("Coincident", 0, 2, 1, 1),
    Sketcher.Constraint("Coincident", 1, 2, 2, 1),
    Sketcher.Constraint("Tangent", 2, 2, 3, 1),
    Sketcher.Constraint("Tangent", 3, 2, 0, 1),
    Sketcher.Constraint("Tangent", 4, 2, 5, 1),
    Sketcher.Constraint("Tangent", 5, 2, 6, 1),
    Sketcher.Constraint("Coincident", 6, 2, 7, 1),
    Sketcher.Constraint("Coincident", 7, 2, 4, 1),
    Sketcher.Constraint("Horizontal", 0),
    Sketcher.Constraint("Vertical", 1),
    Sketcher.Constraint("Horizontal", 2),
    Sketcher.Constraint("Horizontal", 4),
    Sketcher.Constraint("Horizontal", 6),
    Sketcher.Constraint("Vertical", 7),
    Sketcher.Constraint("Equal", 3, 5),
    Sketcher.Constraint("Symmetric", 3, 3, 5, 3, -2),
    Sketcher.Constraint("Equal", 2, 4),
    Sketcher.Constraint("Radius", 3, Q("0.2 in")),
    Sketcher.Constraint("DistanceX", 0, 2, 0, 1, Q("0.1 in")),
    Sketcher.Constraint("DistanceX", 5, 3, 3, 3, Q("3 in")),
    Sketcher.Constraint("DistanceY", -1, 1, 3, 3, Q("0.64 in")),
])
pad12 = doc.addObject("PartDesign::Pad", "Pad011")
body.addObject(pad12)
pad12.Profile = sketch23
pad12.Length = Q("0.14 in")

# Sketch on XY plane
sketch24 = doc.addObject("Sketcher::SketchObject", "Sketch023")
body.addObject(sketch24)
sketch24.AttachmentSupport = (doc.XY_Plane, [""])
sketch24.MapMode = "FlatFace"
sketch24.addGeometry([
    Part.LineSegment(App.Vector(35.56, 13.081, 0), App.Vector(35.56, 19.431, 0)),
    Part.LineSegment(App.Vector(35.56, 19.431, 0), App.Vector(38.1, 19.431, 0)),
    Part.ArcOfCircle(Part.Circle(App.Vector(38.1, 16.256, 0), App.Vector(0, 0, 1), 3.175), math.radians(-90), math.radians(90)),
    Part.LineSegment(App.Vector(38.1, 13.081, 0), App.Vector(35.56, 13.081, 0)),
], False)
sketch24.addConstraint([
    Sketcher.Constraint("Coincident", 0, 2, 1, 1),
    Sketcher.Constraint("Tangent", 1, 2, 2, 2),
    Sketcher.Constraint("Tangent", 2, 1, 3, 1),
    Sketcher.Constraint("Coincident", 3, 2, 0, 1),
    Sketcher.Constraint("Vertical", 0),
    Sketcher.Constraint("Horizontal", 1),
    Sketcher.Constraint("Horizontal", 3),
    Sketcher.Constraint("DistanceX", 1, 1, 1, 2, Q("0.1 in")),
    Sketcher.Constraint("Radius", 2, Q("0.125 in")),
    Sketcher.Constraint("DistanceX", -1, 1, 2, 3, Q("1.5 in")),
    Sketcher.Constraint("DistanceY", -1, 1, 2, 3, Q("0.64 in")),
])
pad13 = doc.addObject("PartDesign::Pad", "Pad012")
body.addObject(pad13)
pad13.Profile = sketch24
pad13.Length = Q("0.37 in")
pad13.Reversed = True
doc.recompute()

mirrored4 = doc.addObject("PartDesign::Mirrored", "Mirrored003")
body.addObject(mirrored4)
mirrored4.Originals = [pad13]
mirrored4.MirrorPlane = (doc.YZ_Plane, [""])
body.Tip = mirrored4

# Sketch on XY plane
sketch25 = doc.addObject("Sketcher::SketchObject", "Sketch024")
body.addObject(sketch25)
sketch25.AttachmentSupport = (doc.XY_Plane, [""])
sketch25.MapMode = "FlatFace"
sketch25.addGeometry([
    Part.LineSegment(App.Vector(-22.692219, -27.378401, 0), App.Vector(-25.797191, -32.457191, 0)),  # 0
    Part.ArcOfCircle(Part.Circle(App.Vector(-21.463, -35.106944, 0), App.Vector(0, 0, 1), 5.08), math.radians(148.560031), math.radians(328.560031)),  # 1
    Part.LineSegment(App.Vector(-17.128809, -37.756697, 0), App.Vector(-14.023837, -32.677907, 0)),  # 2
    Part.ArcOfCircle(Part.Circle(App.Vector(0, 0, 0), App.Vector(0, 0, 1), 35.56), math.radians(-129.65318), math.radians(-113.226759)),  # 3
    Part.LineSegment(App.Vector(25.797191, -32.457191, 0), App.Vector(22.692219, -27.378401, 0)),  # 4
    Part.ArcOfCircle(Part.Circle(App.Vector(0, 0, 0), App.Vector(0, 0, 1), 35.56), math.radians(-66.773241), math.radians(-50.34682)),  # 5
    Part.LineSegment(App.Vector(14.023837, -32.677907, 0), App.Vector(17.128809, -37.756697, 0)),  # 6
    Part.ArcOfCircle(Part.Circle(App.Vector(21.463, -35.106944, 0), App.Vector(0, 0, 1), 5.08), math.radians(-148.560031), math.radians(31.439969)),  # 7
], False)
sketch25.addConstraint([
    Sketcher.Constraint("Tangent", 0, 2, 1, 1),
    Sketcher.Constraint("Tangent", 1, 2, 2, 1),
    Sketcher.Constraint("Coincident", 2, 2, 3, 2),
    Sketcher.Constraint("Coincident", 3, 1, 0, 1),
    Sketcher.Constraint("Coincident", 4, 2, 5, 2),
    Sketcher.Constraint("Coincident", 5, 1, 6, 1),
    Sketcher.Constraint("Tangent", 6, 2, 7, 1),
    Sketcher.Constraint("Tangent", 7, 2, 4, 1),
    Sketcher.Constraint("Coincident", 3, 3, -1, 1),
    Sketcher.Constraint("Coincident", 5, 3, -1, 1),
    Sketcher.Constraint("Equal", 3, 5),
    Sketcher.Constraint("Equal", 1, 7),
    Sketcher.Constraint("Symmetric", 1, 3, 7, 3, -2),
    Sketcher.Constraint("Parallel", 0, 2),
    Sketcher.Constraint("Parallel", 4, 6),
    Sketcher.Constraint("Horizontal", 3, 1, 4, 2),
    Sketcher.Constraint("Equal", 0, 2),
    Sketcher.Constraint("Radius", 1, Q("0.2 in")),
    Sketcher.Constraint("Radius", 3, Q("1.4 in")),
    Sketcher.Constraint("DistanceX", 1, 3, 7, 3, Q("1.69 in")),
    Sketcher.Constraint("DistanceY", 3, 1, -1, 1, 27.378401),
])
pad14 = doc.addObject("PartDesign::Pad", "Pad013")
body.addObject(pad14)
pad14.Profile = sketch25
pad14.Length = Q("0.14 in")

# Sketch on XY plane
sketch26 = doc.addObject("Sketcher::SketchObject", "Sketch025")
body.addObject(sketch26)
sketch26.AttachmentSupport = (doc.XY_Plane, [""])
sketch26.MapMode = "FlatFace"
sketch26.addGeometry([
    Part.LineSegment(App.Vector(24.171869, -33.450849, 0), App.Vector(21.18306, -28.562065, 0)),  # 0
    Part.ArcOfCircle(Part.Circle(App.Vector(0, 0, 0), App.Vector(0, 0, 1), 35.56), math.radians(-63.682547), math.radians(-53.437515)),  # 1
    Part.LineSegment(App.Vector(15.765322, -31.874257, 0), App.Vector(18.754131, -36.76304, 0)),  # 2
    Part.ArcOfCircle(Part.Circle(App.Vector(21.463, -35.106944, 0), App.Vector(0, 0, 1), 3.175), math.radians(-148.560031), math.radians(31.439969)),  # 3
    Part.LineSegment(App.Vector(-18.754131, -36.76304, 0), App.Vector(-15.765322, -31.874257, 0)),  # 4
    Part.ArcOfCircle(Part.Circle(App.Vector(0, 0, 0), App.Vector(0, 0, 1), 35.56), math.radians(-126.562485), math.radians(-116.317453)),  # 5
    Part.LineSegment(App.Vector(-21.18306, -28.562065, 0), App.Vector(-24.171869, -33.450849, 0)),  # 6
    Part.ArcOfCircle(Part.Circle(App.Vector(-21.463, -35.106944, 0), App.Vector(0, 0, 1), 3.175), math.radians(148.560031), math.radians(328.560031)),  # 7
], False)
sketch26.addConstraint([
    Sketcher.Constraint("Coincident", 0, 2, 1, 2),
    Sketcher.Constraint("Coincident", 1, 1, 2, 1),
    Sketcher.Constraint("Tangent", 2, 2, 3, 1),
    Sketcher.Constraint("Tangent", 3, 2, 0, 1),
    Sketcher.Constraint("Coincident", 4, 2, 5, 2),
    Sketcher.Constraint("Coincident", 5, 1, 6, 1),
    Sketcher.Constraint("Tangent", 6, 2, 7, 1),
    Sketcher.Constraint("Tangent", 7, 2, 4, 1),
    Sketcher.Constraint("Coincident", 1, 3, -1, 1),
    Sketcher.Constraint("Coincident", 5, 3, -1, 1),
    Sketcher.Constraint("Equal", 1, 5),
    Sketcher.Constraint("Equal", 3, 7),
    Sketcher.Constraint("Symmetric", 3, 3, 7, 3, -2),
    Sketcher.Constraint("Parallel", 0, 2),
    Sketcher.Constraint("Parallel", 4, 6),
    Sketcher.Constraint("Horizontal", 1, 1, 4, 2),
    Sketcher.Constraint("Equal", 0, 2),
    Sketcher.Constraint("Radius", 1, Q("1.4 in")),
    Sketcher.Constraint("Radius", 3, Q("0.125 in")),
    Sketcher.Constraint("DistanceX", 7, 3, 3, 3, Q("1.69 in")),
    Sketcher.Constraint("DistanceX", -1, 1, 0, 2, 21.18306),
])
pad15 = doc.addObject("PartDesign::Pad", "Pad014")
body.addObject(pad15)
pad15.Profile = sketch26
pad15.Length = Q("0.37 in")
pad15.Reversed = True

# Sketch on XY plane
sketch27 = doc.addObject("Sketcher::SketchObject", "Sketch026")
body.addObject(sketch27)
sketch27.AttachmentSupport = (doc.XY_Plane, [""])
sketch27.MapMode = "FlatFace"
sketch27.AttachmentOffset = App.Placement(App.Vector(0, 0, 0.14 * 25.4), App.Rotation())
sketch27.addGeometry(Part.Circle(App.Vector(-38.1, 16.256, 0), App.Vector(0, 0, 1), 3.3528), False)
sketch27.addConstraint([
    Sketcher.Constraint("Diameter", 0, Q("0.264 in")),
    Sketcher.Constraint("DistanceX", 0, 3, -1, 1, Q("1.5 in")),
    Sketcher.Constraint("DistanceY", -1, 1, 0, 3, Q("0.64 in")),
])
pocket10 = doc.addObject("PartDesign::Pocket", "Pocket009")
body.addObject(pocket10)
pocket10.Profile = sketch27
pocket10.Length = Q("0.58 in")
pocket10.Reversed = True
doc.recompute()

mirrored5 = doc.addObject("PartDesign::Mirrored", "Mirrored004")
body.addObject(mirrored5)
mirrored5.Originals = [pocket10]
mirrored5.MirrorPlane = (doc.YZ_Plane, [""])
body.Tip = mirrored5

# Sketch on XY plane
sketch28 = doc.addObject("Sketcher::SketchObject", "Sketch027")
body.addObject(sketch28)
sketch28.AttachmentSupport = (doc.XY_Plane, [""])
sketch28.MapMode = "FlatFace"
sketch28.AttachmentOffset = App.Placement(App.Vector(0, 0, 0.14 * 25.4), App.Rotation())
sketch28.addGeometry(Part.Circle(App.Vector(-38.1, 16.256, 0), App.Vector(0, 0, 1), 2.7178), False)
sketch28.addConstraint([
    Sketcher.Constraint("Diameter", 0, Q("0.214 in")),
    Sketcher.Constraint("DistanceX", 0, 3, -1, 1, Q("1.5 in")),
    Sketcher.Constraint("DistanceY", -1, 1, 0, 3, Q("0.64 in")),
])
pad16 = doc.addObject("PartDesign::Pad", "Pad015")
body.addObject(pad16)
pad16.Profile = sketch28
pad16.Length = Q("0.07 in")
doc.recompute()

mirrored6 = doc.addObject("PartDesign::Mirrored", "Mirrored005")
body.addObject(mirrored6)
mirrored6.Originals = [pad16]
mirrored6.MirrorPlane = (doc.YZ_Plane, [""])
body.Tip = mirrored6

# Sketch on XY plane
sketch29 = doc.addObject("Sketcher::SketchObject", "Sketch028")
body.addObject(sketch29)
sketch29.AttachmentSupport = (doc.XY_Plane, [""])
sketch29.MapMode = "FlatFace"
sketch29.AttachmentOffset = App.Placement(App.Vector(0, 0, 0.14 * 25.4), App.Rotation())
sketch29.addGeometry(Part.Circle(App.Vector(-21.463, -35.106944, 0), App.Vector(0, 0, 1), 2.7178), False)
sketch29.addConstraint([
    Sketcher.Constraint("Diameter", 0, Q("0.214 in")),
    Sketcher.Constraint("DistanceX", 0, 3, -1, 1, Q("0.845 in")),
    Sketcher.Constraint("DistanceY", 0, 3, -1, 1, 35.106944),
])
pad17 = doc.addObject("PartDesign::Pad", "Pad016")
body.addObject(pad17)
pad17.Profile = sketch29
pad17.Length = Q("0.07 in")

# Sketch on XY plane
sketch30 = doc.addObject("Sketcher::SketchObject", "Sketch029")
body.addObject(sketch30)
sketch30.AttachmentSupport = (doc.XY_Plane, [""])
sketch30.MapMode = "FlatFace"
sketch30.AttachmentOffset = App.Placement(App.Vector(0, 0, 0.14 * 25.4), App.Rotation())
sketch30.addGeometry(Part.Circle(App.Vector(21.463, -35.106944, 0), App.Vector(0, 0, 1), 2.7178), False)
sketch30.addConstraint([
    Sketcher.Constraint("Diameter", 0, Q("0.214 in")),
    Sketcher.Constraint("DistanceX", -1, 1, 0, 3, Q("0.845 in")),
    Sketcher.Constraint("DistanceY", 0, 3, -1, 1, 35.106944),
])
pad18 = doc.addObject("PartDesign::Pad", "Pad017")
body.addObject(pad18)
pad18.Profile = sketch30
pad18.Length = Q("0.07 in")
doc.recompute()

fillet = doc.addObject("PartDesign::Fillet", "Fillet")
body.addObject(fillet)
fillet.Base = (pad18, edges_at(pad18, [
    (-40.818, 16.256, 5.334),
    (40.818, 16.256, 5.334),
    (-24.181, -35.107, 5.334),
    (18.745, -35.107, 5.334),
]))
fillet.Radius = Q("0.015 in")

doc.recompute()
